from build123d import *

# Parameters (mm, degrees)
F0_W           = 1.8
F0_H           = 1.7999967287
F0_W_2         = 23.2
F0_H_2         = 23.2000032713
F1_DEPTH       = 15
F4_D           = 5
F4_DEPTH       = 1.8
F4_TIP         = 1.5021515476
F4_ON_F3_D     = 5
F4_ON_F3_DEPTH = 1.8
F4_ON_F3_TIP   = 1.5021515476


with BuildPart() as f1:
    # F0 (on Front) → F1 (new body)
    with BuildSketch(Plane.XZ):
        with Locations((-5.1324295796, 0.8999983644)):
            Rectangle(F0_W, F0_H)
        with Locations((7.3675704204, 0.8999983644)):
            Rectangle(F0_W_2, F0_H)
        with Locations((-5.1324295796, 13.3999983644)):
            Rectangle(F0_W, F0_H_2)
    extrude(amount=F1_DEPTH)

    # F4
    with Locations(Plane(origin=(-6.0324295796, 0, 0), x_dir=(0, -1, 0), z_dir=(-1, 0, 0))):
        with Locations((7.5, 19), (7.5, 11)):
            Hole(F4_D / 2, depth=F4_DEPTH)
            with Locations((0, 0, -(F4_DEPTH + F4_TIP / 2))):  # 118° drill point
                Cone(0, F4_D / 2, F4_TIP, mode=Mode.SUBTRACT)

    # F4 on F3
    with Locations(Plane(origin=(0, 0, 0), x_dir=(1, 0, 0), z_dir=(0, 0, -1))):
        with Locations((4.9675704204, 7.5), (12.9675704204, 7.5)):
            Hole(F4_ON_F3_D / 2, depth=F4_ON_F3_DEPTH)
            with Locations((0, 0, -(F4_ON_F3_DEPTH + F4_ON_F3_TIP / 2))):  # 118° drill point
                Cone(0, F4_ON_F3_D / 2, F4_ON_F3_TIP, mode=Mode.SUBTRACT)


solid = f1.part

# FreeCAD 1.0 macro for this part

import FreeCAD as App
import Part
import Sketcher
from FreeCAD import Vector
Q = App.Units.Quantity


def add_polygon(sketch, points):
    """Adds a closed chain of lines whose ends are joined by coincident constraints."""
    first, n = sketch.GeometryCount, len(points)
    for a, b in zip(points, points[1:] + points[:1]):
        sketch.addGeometry(Part.LineSegment(App.Vector(*a, 0), App.Vector(*b, 0)), False)
    for i in range(n):
        sketch.addConstraint(Sketcher.Constraint("Coincident", first + i, 2, first + (i + 1) % n, 1))

doc = App.newDocument("Part")
body = doc.addObject("PartDesign::Body", "Body")

# Sketch on XZ plane
sketch1 = doc.addObject("Sketcher::SketchObject", "Sketch")
body.addObject(sketch1)
sketch1.AttachmentSupport = (doc.XZ_Plane, [""])
sketch1.MapMode = "FlatFace"
add_polygon(sketch1, [(-6.03243, 0), (18.96757, 0), (18.96757, 1.799997), (-4.23243, 1.799997), (-4.23243, 25), (-6.03243, 25)])  # lines 0-5
sketch1.addConstraint([
    Sketcher.Constraint("Horizontal", 0),
    Sketcher.Constraint("Vertical", 1),
    Sketcher.Constraint("Horizontal", 2),
    Sketcher.Constraint("Vertical", 3),
    Sketcher.Constraint("Horizontal", 4),
    Sketcher.Constraint("Vertical", 5),
    Sketcher.Constraint("PointOnObject", 0, 2, -1),
    Sketcher.Constraint("Equal", 0, 5),
    Sketcher.Constraint("DistanceX", 0, 1, 0, 2, Q("25 mm")),
    Sketcher.Constraint("DistanceX", 2, 2, 2, 1, Q("23.2 mm")),
    Sketcher.Constraint("DistanceY", 1, 1, 1, 2, Q("1.799997 mm")),
    Sketcher.Constraint("DistanceX", -1, 1, 0, 2, Q("18.96757 mm")),
])
pad1 = doc.addObject("PartDesign::Pad", "Pad")
body.addObject(pad1)
pad1.Profile = sketch1
pad1.Length = 15

# Sketch on YZ plane
sketch2 = doc.addObject("Sketcher::SketchObject", "Sketch001")
body.addObject(sketch2)
sketch2.AttachmentSupport = (doc.YZ_Plane, [""])
sketch2.MapMode = "FlatFace"
sketch2.AttachmentOffset = App.Placement(Vector(0, 0, -6.03243), App.Rotation())
sketch2.addGeometry([
    Part.Circle(Vector(-7.5, 19, 0), Vector(0, 0, 1), 2.5),
    Part.Circle(Vector(-7.5, 11, 0), Vector(0, 0, 1), 2.5),
], False)
sketch2.addConstraint([
    Sketcher.Constraint("Equal", 0, 1),
    Sketcher.Constraint("Vertical", 0, 3, 1, 3),
    Sketcher.Constraint("Diameter", 0, Q("5 mm")),
    Sketcher.Constraint("DistanceY", -1, 1, 0, 3, Q("19 mm")),
    Sketcher.Constraint("DistanceY", -1, 1, 1, 3, Q("11 mm")),
    Sketcher.Constraint("DistanceX", 0, 3, -1, 1, Q("7.5 mm")),
])
doc.recompute()
hole = doc.addObject("PartDesign::Hole", "Hole")
body.addObject(hole)
hole.Profile = sketch2
hole.ThreadType = "None"
hole.Diameter = 5
hole.DepthType = "Dimension"
hole.Depth = 1.8
hole.DrillPoint = "Angled"
hole.DrillPointAngle = 118
hole.Reversed = True

# Sketch on XY plane
sketch3 = doc.addObject("Sketcher::SketchObject", "Sketch002")
body.addObject(sketch3)
sketch3.AttachmentSupport = (doc.XY_Plane, [""])
sketch3.MapMode = "FlatFace"
sketch3.addGeometry([
    Part.Circle(Vector(4.96757, -7.5, 0), Vector(0, 0, 1), 2.5),
    Part.Circle(Vector(12.96757, -7.5, 0), Vector(0, 0, 1), 2.5),
], False)
sketch3.addConstraint([
    Sketcher.Constraint("Equal", 0, 1),
    Sketcher.Constraint("Horizontal", 0, 3, 1, 3),
    Sketcher.Constraint("Diameter", 0, Q("5 mm")),
    Sketcher.Constraint("DistanceX", 0, 3, 1, 3, Q("8 mm")),
    Sketcher.Constraint("DistanceY", 0, 3, -1, 1, Q("7.5 mm")),
    Sketcher.Constraint("DistanceX", -1, 1, 0, 3, Q("4.96757 mm")),
])
doc.recompute()
hole2 = doc.addObject("PartDesign::Hole", "Hole001")
body.addObject(hole2)
hole2.Profile = sketch3
hole2.ThreadType = "None"
hole2.Diameter = 5
hole2.DepthType = "Dimension"
hole2.Depth = 1.8
hole2.DrillPoint = "Angled"
hole2.DrillPointAngle = 118
hole2.Reversed = True

doc.recompute()
